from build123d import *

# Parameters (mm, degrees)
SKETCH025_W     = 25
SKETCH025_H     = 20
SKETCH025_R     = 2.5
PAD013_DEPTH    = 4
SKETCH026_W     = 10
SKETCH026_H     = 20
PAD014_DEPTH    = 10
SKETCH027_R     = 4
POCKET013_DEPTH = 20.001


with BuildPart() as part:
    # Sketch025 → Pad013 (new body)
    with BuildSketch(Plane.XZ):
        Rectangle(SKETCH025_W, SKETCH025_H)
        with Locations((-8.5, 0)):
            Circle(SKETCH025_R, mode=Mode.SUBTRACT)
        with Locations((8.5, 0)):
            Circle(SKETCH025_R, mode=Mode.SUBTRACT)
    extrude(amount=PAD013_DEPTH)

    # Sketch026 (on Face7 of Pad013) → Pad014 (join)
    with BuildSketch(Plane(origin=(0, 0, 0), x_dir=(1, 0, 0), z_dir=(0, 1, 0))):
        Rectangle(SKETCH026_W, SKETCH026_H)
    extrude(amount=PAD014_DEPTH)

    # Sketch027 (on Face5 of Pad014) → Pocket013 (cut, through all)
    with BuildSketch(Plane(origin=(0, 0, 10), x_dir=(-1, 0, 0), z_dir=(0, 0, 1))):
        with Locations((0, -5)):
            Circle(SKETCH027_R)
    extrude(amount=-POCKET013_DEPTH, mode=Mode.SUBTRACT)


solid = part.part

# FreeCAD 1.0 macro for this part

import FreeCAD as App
import Part
import Sketcher

V = App.Vector
Q = App.Units.Quantity


def add_polygon(sketch, points):
    """Adds a closed chain of lines whose ends are joined by coincident constraints."""
    first, n = sketch.GeometryCount, len(points)
    for a, b in zip(points, points[1:] + points[:1]):
        sketch.addGeometry(Part.LineSegment(App.Vector(*a, 0), App.Vector(*b, 0)), False)
    for i in range(n):
        sketch.addConstraint(Sketcher.Constraint("Coincident", first + i, 2, first + (i + 1) % n, 1))

doc = App.newDocument("Part")
body = doc.addObject("PartDesign::Body", "Body")

# Sketch on XZ plane
sketch1 = body.newObject("Sketcher::SketchObject", "Sketch")
sketch1.AttachmentSupport = (doc.getObject("XZ_Plane"), [""])
sketch1.MapMode = "FlatFace"
add_polygon(sketch1, [(-12.5, 10), (-12.5, -10), (12.5, -10), (12.5, 10)])  # lines 0-3
sketch1.addGeometry(Part.Circle(V(-8.5, 0, 0), V(0, 0, 1), 2.5), False)  # 4
sketch1.addGeometry(Part.Circle(V(8.5, 0, 0), V(0, 0, 1), 2.5), False)  # 5
sketch1.addConstraint([
    Sketcher.Constraint("Vertical", 0),
    Sketcher.Constraint("Horizontal", 1),
    Sketcher.Constraint("Vertical", 2),
    Sketcher.Constraint("Horizontal", 3),
    Sketcher.Constraint("Equal", 4, 5),
    Sketcher.Constraint("Symmetric", 4, 3, 5, 3, -1, 1),
    Sketcher.Constraint("Symmetric", 0, 2, 2, 2, -1, 1),
    Sketcher.Constraint("PointOnObject", 4, 3, -1),
    Sketcher.Constraint("Diameter", 4, Q("5 mm")),
    Sketcher.Constraint("DistanceX", 1, 1, 1, 2, Q("25 mm")),
    Sketcher.Constraint("DistanceY", 0, 2, 0, 1, Q("20 mm")),
    Sketcher.Constraint("DistanceX", 4, 3, 5, 3, Q("17 mm")),
])
pad1 = body.newObject("PartDesign::Pad", "Pad")
pad1.Profile = sketch1
pad1.Length = 4

# Sketch on XZ plane
sketch2 = body.newObject("Sketcher::SketchObject", "Sketch001")
sketch2.AttachmentSupport = (doc.getObject("XZ_Plane"), [""])
sketch2.MapMode = "FlatFace"
add_polygon(sketch2, [(-5, -10), (-5, 10), (5, 10), (5, -10)])  # lines 0-3
sketch2.addConstraint([
    Sketcher.Constraint("Vertical", 0),
    Sketcher.Constraint("Horizontal", 1),
    Sketcher.Constraint("Vertical", 2),
    Sketcher.Constraint("Horizontal", 3),
    Sketcher.Constraint("Symmetric", 0, 2, 2, 2, -1, 1),
    Sketcher.Constraint("DistanceX", 1, 1, 1, 2, Q("10 mm")),
    Sketcher.Constraint("DistanceY", 0, 1, 0, 2, Q("20 mm")),
])
pad2 = body.newObject("PartDesign::Pad", "Pad001")
pad2.Profile = sketch2
pad2.Length = 10
pad2.Reversed = True

# Sketch on XY plane
sketch3 = body.newObject("Sketcher::SketchObject", "Sketch002")
sketch3.AttachmentSupport = (doc.getObject("XY_Plane"), [""])
sketch3.MapMode = "FlatFace"
sketch3.AttachmentOffset = App.Placement(V(0, 0, 10), App.Rotation())
sketch3.addGeometry(Part.Circle(V(0, 5, 0), V(0, 0, 1), 4), False)
sketch3.addConstraint([
    Sketcher.Constraint("PointOnObject", 0, 3, -2),
    Sketcher.Constraint("Diameter", 0, Q("8 mm")),
    Sketcher.Constraint("DistanceY", -1, 1, 0, 3, Q("5 mm")),
])
pocket1 = body.newObject("PartDesign::Pocket", "Pocket")
pocket1.Profile = sketch3
pocket1.Type = "ThroughAll"

doc.recompute()
